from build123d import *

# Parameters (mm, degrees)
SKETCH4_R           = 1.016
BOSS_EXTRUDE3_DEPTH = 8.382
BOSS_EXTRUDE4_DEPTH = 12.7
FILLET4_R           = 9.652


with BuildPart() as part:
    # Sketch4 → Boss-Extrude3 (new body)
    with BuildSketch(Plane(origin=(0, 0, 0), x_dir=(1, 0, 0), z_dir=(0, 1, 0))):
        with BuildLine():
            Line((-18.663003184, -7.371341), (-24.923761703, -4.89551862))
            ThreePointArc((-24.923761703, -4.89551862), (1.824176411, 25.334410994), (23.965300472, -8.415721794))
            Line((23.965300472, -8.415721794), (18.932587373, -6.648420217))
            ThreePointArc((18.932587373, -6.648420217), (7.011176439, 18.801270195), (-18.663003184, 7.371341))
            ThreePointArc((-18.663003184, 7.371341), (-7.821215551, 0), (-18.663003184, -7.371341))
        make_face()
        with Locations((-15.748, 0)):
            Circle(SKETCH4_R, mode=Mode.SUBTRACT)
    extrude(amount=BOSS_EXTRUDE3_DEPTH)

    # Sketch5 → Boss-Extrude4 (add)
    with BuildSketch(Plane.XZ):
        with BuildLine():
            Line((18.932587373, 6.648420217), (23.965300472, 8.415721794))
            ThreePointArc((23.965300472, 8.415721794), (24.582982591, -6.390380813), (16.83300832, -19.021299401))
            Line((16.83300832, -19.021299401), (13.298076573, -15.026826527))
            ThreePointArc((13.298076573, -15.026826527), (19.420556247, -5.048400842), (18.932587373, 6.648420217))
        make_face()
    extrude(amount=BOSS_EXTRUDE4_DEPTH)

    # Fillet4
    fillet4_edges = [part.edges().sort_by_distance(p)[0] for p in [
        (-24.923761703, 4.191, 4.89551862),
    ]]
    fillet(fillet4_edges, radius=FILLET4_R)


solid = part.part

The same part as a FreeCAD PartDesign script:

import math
import FreeCAD as App
import Part
import Sketcher
Q = App.Units.Quantity


def edges_at(feature, points):
    """Names of the edges that pass closest to the given points."""
    edges = feature.Shape.Edges
    near = lambda p: min(range(len(edges)), key=lambda i: edges[i].distToShape(Part.Vertex(*p))[0])
    return sorted({f"Edge{near(p) + 1}" for p in points})

doc = App.newDocument("Part")
body = doc.addObject("PartDesign::Body", "Body")

# Sketch on XZ plane
sketch1 = body.newObject("Sketcher::SketchObject", "Sketch")
sketch1.AttachmentSupport = (doc.getObject("XZ_Plane"), [""])
sketch1.MapMode = "FlatFace"
sketch1.addGeometry(Part.LineSegment(App.Vector(-24.9, 4.9, 0), App.Vector(-18.7, 7.4, 0)), False)
sketch1.addGeometry(Part.ArcOfCircle(Part.Circle(App.Vector(-15.7, 0, 0), App.Vector(0, 0, 1), 7.9), math.radians(-112), math.radians(112)), False)
sketch1.addGeometry(Part.ArcOfCircle(Part.Circle(App.Vector(0, 0, 0), App.Vector(0, 0, 1), 20.1), math.radians(-158), math.radians(19)), False)
sketch1.addGeometry(Part.LineSegment(App.Vector(18.9, 6.6, 0), App.Vector(24, 8.4, 0)), False)
sketch1.addGeometry(Part.ArcOfCircle(Part.Circle(App.Vector(0, 0, 0), App.Vector(0, 0, 1), 25.4), math.radians(169), math.radians(379)), False)
sketch1.addGeometry(Part.Circle(App.Vector(-15.7, 0, 0), App.Vector(0, 0, 1), 1), False)
sketch1.addConstraint(Sketcher.Constraint("Tangent", 0, 2, 1, 2))
sketch1.addConstraint(Sketcher.Constraint("Coincident", 1, 1, 2, 1))
sketch1.addConstraint(Sketcher.Constraint("Coincident", 2, 2, 3, 1))
sketch1.addConstraint(Sketcher.Constraint("Coincident", 3, 2, 4, 2))
sketch1.addConstraint(Sketcher.Constraint("Coincident", 4, 1, 0, 1))
sketch1.addConstraint(Sketcher.Constraint("Coincident", 2, 3, -1, 1))
sketch1.addConstraint(Sketcher.Constraint("Coincident", 4, 3, -1, 1))
sketch1.addConstraint(Sketcher.Constraint("Coincident", 5, 3, 1, 3))
sketch1.addConstraint(Sketcher.Constraint("Symmetric", 0, 2, 1, 1, -1))
sketch1.addConstraint(Sketcher.Constraint("Radius", 4, Q("1 in")))
sketch1.addConstraint(Sketcher.Constraint("Diameter", 5, Q("0.08 in")))
sketch1.addConstraint(Sketcher.Constraint("Radius", 2, Q("0.79 in")))
sketch1.addConstraint(Sketcher.Constraint("DistanceX", 1, 3, -1, 1, Q("0.62 in")))
sketch1.addConstraint(Sketcher.Constraint("Radius", 1, 7.926784))
sketch1.addConstraint(Sketcher.Constraint("DistanceX", -1, 1, 3, 2, 23.9653))
sketch1.addConstraint(Sketcher.Constraint("DistanceY", 2, 2, 3, 2, 1.767302))
pad1 = body.newObject("PartDesign::Pad", "Pad")
pad1.Profile = sketch1
pad1.Length = Q("0.33 in")
pad1.Reversed = True

# Sketch on XZ plane
sketch2 = body.newObject("Sketcher::SketchObject", "Sketch001")
sketch2.AttachmentSupport = (doc.getObject("XZ_Plane"), [""])
sketch2.MapMode = "FlatFace"
sketch2.addGeometry(Part.LineSegment(App.Vector(24, 8, 0), App.Vector(19, 7, 0)), False)
sketch2.addGeometry(Part.ArcOfCircle(Part.Circle(App.Vector(0, 0, 0), App.Vector(0, 0, 1), 20), math.radians(-48), math.radians(19)), False)
sketch2.addGeometry(Part.LineSegment(App.Vector(13, -15, 0), App.Vector(17, -19, 0)), False)
sketch2.addGeometry(Part.ArcOfCircle(Part.Circle(App.Vector(0, 0, 0), App.Vector(0, 0, 1), 25), math.radians(-48), math.radians(19)), False)
sketch2.addConstraint(Sketcher.Constraint("Coincident", 0, 2, 1, 2))
sketch2.addConstraint(Sketcher.Constraint("Coincident", 1, 1, 2, 1))
sketch2.addConstraint(Sketcher.Constraint("Coincident", 2, 2, 3, 1))
sketch2.addConstraint(Sketcher.Constraint("Coincident", 3, 2, 0, 1))
sketch2.addConstraint(Sketcher.Constraint("Coincident", 1, 3, -1, 1))
sketch2.addConstraint(Sketcher.Constraint("Coincident", 3, 3, -1, 1))
sketch2.addConstraint(Sketcher.Constraint("Radius", 3, Q("1 in")))
sketch2.addConstraint(Sketcher.Constraint("Radius", 1, Q("0.79 in")))
sketch2.addConstraint(Sketcher.Constraint("DistanceY", 2, 2, -1, 1, 19.021299))
sketch2.addConstraint(Sketcher.Constraint("DistanceX", -1, 1, 3, 2, 23.9653))
sketch2.addConstraint(Sketcher.Constraint("DistanceY", 0, 2, 3, 2, 1.767302))
sketch2.addConstraint(Sketcher.Constraint("DistanceX", 1, 1, 0, 2, 5.634511))
pad2 = body.newObject("PartDesign::Pad", "Pad001")
pad2.Profile = sketch2
pad2.Length = Q("0.5 in")
doc.recompute()

fillet = body.newObject("PartDesign::Fillet", "Fillet")
fillet.Base = (pad2, edges_at(pad2, [(-24.924, 4.191, 4.896)]))
fillet.Radius = Q("0.38 in")

doc.recompute()
